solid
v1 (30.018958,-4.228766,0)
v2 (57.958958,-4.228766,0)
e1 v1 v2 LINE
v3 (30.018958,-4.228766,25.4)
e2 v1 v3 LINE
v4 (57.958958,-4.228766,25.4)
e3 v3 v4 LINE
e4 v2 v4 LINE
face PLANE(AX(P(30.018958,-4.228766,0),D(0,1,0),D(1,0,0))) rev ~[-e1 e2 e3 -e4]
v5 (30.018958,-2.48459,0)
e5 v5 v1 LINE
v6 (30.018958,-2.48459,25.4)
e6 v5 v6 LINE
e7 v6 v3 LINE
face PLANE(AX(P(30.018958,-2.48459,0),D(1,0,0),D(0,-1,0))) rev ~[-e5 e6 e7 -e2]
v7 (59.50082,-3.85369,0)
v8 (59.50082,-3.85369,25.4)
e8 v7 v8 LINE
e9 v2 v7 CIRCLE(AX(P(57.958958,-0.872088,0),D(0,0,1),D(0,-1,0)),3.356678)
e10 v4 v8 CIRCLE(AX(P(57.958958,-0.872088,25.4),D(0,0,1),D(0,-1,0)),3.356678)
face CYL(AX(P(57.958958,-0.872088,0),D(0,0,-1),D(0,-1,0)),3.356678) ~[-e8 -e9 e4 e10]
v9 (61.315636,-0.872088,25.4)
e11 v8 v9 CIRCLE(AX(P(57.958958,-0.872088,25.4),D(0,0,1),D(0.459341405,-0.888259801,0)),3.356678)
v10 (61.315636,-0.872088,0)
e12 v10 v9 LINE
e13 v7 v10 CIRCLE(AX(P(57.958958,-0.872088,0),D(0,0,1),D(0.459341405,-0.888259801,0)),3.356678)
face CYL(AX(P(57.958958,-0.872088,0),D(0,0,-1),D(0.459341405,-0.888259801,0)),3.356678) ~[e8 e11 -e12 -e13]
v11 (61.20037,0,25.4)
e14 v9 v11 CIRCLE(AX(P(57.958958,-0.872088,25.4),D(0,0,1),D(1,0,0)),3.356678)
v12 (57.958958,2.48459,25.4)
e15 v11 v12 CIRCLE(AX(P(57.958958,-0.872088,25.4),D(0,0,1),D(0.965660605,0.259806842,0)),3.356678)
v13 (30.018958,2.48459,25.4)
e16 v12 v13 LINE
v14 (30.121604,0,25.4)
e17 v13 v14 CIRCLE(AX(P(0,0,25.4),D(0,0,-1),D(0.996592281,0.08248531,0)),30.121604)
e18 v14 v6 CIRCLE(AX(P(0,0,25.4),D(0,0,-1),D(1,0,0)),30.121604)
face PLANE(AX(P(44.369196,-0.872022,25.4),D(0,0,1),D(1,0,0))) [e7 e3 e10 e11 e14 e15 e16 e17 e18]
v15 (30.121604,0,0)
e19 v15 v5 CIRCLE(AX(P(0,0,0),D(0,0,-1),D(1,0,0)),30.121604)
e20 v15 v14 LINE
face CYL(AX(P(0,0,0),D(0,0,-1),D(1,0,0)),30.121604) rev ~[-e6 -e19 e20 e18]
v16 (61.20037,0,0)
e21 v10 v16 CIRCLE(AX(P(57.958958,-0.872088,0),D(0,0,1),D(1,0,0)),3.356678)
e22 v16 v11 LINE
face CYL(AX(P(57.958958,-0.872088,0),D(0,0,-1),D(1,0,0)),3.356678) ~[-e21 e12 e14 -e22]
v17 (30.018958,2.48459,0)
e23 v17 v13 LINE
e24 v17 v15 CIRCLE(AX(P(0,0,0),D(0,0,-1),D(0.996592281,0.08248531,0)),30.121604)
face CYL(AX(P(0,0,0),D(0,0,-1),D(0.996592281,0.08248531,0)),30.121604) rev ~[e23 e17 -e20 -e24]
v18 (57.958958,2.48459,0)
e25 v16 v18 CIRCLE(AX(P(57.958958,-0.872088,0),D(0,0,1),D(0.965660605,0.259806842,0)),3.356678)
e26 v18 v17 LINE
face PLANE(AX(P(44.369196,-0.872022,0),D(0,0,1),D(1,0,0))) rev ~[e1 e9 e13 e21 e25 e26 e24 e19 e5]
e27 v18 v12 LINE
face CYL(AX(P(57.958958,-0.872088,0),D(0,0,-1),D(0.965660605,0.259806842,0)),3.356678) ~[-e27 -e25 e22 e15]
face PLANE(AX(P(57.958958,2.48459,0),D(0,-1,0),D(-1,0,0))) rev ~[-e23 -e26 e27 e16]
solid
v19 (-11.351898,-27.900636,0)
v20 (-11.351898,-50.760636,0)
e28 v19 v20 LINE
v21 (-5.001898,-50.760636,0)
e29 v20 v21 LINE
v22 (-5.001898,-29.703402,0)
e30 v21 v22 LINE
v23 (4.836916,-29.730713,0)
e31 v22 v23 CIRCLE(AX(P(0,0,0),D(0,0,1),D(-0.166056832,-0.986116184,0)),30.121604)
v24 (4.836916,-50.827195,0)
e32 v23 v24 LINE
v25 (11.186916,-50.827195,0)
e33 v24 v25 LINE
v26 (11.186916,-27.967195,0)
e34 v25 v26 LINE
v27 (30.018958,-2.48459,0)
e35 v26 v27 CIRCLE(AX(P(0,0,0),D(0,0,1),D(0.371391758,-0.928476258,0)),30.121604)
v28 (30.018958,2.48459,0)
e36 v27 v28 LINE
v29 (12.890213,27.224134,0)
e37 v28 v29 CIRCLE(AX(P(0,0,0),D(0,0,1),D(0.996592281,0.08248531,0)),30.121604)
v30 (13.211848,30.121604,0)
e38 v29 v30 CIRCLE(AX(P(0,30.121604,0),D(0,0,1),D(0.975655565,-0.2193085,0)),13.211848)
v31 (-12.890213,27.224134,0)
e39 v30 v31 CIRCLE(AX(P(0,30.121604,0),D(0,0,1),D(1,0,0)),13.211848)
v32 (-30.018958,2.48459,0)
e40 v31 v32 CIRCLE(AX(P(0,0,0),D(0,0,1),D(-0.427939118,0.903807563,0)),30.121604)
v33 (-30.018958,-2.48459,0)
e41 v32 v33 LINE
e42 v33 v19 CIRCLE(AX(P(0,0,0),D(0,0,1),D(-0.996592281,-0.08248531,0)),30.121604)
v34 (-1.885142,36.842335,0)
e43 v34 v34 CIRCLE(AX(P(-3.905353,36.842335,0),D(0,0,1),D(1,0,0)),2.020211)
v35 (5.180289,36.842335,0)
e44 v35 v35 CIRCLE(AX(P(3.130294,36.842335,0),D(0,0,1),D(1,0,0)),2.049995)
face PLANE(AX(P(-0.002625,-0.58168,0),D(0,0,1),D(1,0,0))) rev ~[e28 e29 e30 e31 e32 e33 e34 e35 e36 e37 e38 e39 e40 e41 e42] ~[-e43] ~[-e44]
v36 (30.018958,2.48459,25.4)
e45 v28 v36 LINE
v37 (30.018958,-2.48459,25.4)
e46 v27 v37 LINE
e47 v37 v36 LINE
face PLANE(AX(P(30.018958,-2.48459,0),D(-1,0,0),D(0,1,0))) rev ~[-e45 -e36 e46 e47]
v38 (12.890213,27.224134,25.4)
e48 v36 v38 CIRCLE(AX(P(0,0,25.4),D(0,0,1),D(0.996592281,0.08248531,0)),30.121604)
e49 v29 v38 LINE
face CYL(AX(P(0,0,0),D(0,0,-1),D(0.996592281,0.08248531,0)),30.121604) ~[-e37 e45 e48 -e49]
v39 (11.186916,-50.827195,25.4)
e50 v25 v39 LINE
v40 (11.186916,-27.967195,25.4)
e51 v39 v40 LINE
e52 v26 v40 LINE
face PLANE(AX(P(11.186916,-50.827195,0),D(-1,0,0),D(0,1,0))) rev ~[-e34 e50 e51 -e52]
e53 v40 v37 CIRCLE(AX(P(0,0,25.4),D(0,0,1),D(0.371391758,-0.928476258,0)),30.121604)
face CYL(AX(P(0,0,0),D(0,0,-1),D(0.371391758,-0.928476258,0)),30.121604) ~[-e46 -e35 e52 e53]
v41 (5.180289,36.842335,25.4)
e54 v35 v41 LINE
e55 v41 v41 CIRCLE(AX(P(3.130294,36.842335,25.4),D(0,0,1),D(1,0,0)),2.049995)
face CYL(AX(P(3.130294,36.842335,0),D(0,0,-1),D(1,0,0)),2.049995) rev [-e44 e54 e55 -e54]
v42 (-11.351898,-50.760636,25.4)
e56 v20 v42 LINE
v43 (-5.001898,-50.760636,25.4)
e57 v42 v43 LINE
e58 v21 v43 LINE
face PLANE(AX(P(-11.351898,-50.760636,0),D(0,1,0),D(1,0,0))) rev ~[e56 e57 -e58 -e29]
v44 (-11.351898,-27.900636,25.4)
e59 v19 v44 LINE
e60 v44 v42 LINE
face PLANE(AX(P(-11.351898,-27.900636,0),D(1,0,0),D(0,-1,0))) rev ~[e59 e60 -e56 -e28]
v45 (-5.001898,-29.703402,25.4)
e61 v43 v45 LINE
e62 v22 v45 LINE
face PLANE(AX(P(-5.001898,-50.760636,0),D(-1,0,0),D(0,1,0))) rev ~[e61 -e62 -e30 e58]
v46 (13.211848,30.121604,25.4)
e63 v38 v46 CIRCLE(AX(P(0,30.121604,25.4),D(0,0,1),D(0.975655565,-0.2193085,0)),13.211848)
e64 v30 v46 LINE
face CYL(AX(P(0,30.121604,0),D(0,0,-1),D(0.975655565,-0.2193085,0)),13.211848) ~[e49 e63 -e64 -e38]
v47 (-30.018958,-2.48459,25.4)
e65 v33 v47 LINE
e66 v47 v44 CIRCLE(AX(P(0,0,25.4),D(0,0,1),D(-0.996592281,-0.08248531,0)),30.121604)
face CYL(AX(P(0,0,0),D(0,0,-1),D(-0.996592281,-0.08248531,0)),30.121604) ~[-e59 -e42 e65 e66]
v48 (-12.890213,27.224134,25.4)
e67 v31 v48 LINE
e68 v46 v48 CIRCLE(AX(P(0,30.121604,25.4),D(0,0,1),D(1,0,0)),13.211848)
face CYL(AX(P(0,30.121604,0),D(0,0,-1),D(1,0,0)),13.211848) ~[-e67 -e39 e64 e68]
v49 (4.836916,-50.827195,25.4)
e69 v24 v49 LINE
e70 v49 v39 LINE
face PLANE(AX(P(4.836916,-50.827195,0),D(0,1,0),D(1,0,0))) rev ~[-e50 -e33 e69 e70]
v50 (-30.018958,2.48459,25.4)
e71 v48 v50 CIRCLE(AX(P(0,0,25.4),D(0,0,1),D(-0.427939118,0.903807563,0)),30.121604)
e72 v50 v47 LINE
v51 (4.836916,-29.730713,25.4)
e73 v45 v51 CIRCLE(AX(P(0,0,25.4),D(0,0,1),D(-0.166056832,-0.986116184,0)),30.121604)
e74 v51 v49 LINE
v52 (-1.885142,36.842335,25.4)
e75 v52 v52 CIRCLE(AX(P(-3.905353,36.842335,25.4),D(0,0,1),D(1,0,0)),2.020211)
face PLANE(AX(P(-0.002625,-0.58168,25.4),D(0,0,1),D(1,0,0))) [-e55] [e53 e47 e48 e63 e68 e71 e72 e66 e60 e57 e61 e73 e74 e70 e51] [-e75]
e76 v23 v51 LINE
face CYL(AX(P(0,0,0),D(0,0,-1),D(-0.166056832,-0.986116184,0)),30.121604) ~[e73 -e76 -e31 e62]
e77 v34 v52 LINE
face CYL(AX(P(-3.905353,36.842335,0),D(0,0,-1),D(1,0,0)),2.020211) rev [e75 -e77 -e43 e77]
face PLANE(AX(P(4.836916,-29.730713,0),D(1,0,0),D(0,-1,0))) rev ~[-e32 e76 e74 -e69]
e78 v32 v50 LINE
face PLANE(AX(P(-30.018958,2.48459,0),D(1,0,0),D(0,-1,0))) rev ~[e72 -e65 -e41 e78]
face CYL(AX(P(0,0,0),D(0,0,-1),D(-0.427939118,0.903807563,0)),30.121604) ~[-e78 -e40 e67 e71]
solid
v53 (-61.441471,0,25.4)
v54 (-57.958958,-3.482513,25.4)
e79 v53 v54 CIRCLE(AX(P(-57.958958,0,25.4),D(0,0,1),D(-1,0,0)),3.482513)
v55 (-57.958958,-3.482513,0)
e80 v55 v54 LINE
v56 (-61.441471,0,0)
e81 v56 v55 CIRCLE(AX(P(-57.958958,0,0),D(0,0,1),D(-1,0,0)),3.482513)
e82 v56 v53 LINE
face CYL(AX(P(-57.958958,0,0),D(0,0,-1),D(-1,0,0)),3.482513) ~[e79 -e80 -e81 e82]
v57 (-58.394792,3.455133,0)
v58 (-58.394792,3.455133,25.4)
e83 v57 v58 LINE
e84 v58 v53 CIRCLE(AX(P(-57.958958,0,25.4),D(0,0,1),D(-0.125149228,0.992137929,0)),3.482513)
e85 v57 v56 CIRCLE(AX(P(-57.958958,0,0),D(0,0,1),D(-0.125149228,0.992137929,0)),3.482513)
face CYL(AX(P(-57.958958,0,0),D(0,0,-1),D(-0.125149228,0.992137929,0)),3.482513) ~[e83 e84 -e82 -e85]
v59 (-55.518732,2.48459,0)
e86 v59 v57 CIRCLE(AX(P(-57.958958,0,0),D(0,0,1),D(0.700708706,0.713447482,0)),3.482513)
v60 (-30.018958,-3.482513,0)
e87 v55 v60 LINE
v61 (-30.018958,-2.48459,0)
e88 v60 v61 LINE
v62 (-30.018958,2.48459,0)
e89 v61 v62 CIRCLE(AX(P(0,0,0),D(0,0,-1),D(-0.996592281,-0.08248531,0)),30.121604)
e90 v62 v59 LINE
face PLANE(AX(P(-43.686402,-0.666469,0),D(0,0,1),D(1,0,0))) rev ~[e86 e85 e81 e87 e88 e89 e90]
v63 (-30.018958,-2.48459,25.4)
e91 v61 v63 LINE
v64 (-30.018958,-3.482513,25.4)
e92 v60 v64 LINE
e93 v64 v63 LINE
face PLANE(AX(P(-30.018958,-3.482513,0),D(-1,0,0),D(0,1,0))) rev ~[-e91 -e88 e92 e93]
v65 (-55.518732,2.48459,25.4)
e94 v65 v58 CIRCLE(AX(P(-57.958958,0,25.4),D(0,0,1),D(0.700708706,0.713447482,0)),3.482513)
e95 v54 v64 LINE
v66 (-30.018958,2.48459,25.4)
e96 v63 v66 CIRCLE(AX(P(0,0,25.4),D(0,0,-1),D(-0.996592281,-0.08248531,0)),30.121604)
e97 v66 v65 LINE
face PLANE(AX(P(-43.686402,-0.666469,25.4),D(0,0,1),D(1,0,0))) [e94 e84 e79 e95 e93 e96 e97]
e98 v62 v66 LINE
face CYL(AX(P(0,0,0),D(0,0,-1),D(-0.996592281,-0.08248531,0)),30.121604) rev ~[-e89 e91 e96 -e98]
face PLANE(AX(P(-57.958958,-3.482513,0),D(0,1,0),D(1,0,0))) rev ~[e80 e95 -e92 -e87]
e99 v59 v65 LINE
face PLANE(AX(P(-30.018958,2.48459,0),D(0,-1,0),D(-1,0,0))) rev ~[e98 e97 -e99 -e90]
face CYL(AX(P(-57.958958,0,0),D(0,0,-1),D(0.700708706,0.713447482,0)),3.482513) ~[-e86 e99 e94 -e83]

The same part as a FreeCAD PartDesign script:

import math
import FreeCAD as App
import Part
import Sketcher

V = App.Vector
Q = App.Units.Quantity

doc = App.newDocument("Part")
body = doc.addObject("PartDesign::Body", "Body")

# Sketch on XY plane
sketch1 = body.newObject("Sketcher::SketchObject", "Sketch")
sketch1.AttachmentSupport = (doc.getObject("XY_Plane"), [""])
sketch1.MapMode = "FlatFace"
sketch1.addGeometry([
    Part.LineSegment(V(30, -2.5, 0), V(30, 2.5, 0)),  # 0
    Part.ArcOfCircle(Part.Circle(V(0, 0, 0), V(0, 0, 1), 30.1), math.radians(5), math.radians(65)),  # 1
    Part.ArcOfCircle(Part.Circle(V(0, 30.1, 0), V(0, 0, 1), 13.2), math.radians(-12.67), math.radians(0)),  # 2
    Part.ArcOfCircle(Part.Circle(V(0, 30.1, 0), V(0, 0, 1), 13.2), math.radians(0), math.radians(193)),  # 3
    Part.ArcOfCircle(Part.Circle(V(0, 0, 0), V(0, 0, 1), 30.1), math.radians(115), math.radians(175)),  # 4
    Part.LineSegment(V(-30, 2.5, 0), V(-30, -2.5, 0)),  # 5
    Part.ArcOfCircle(Part.Circle(V(0, 0, 0), V(0, 0, 1), 30.1), math.radians(-175), math.radians(-112)),  # 6
    Part.LineSegment(V(-11.4, -27.9, 0), V(-11.4, -50.8, 0)),  # 7
    Part.LineSegment(V(-11.4, -50.8, 0), V(-5, -50.8, 0)),  # 8
    Part.LineSegment(V(-5, -50.8, 0), V(-5, -29.7, 0)),  # 9
    Part.ArcOfCircle(Part.Circle(V(0, 0, 0), V(0, 0, 1), 30.1), math.radians(-99.56), math.radians(-80.76)),  # 10
    Part.LineSegment(V(4.8, -29.7, 0), V(4.8, -50.8, 0)),  # 11
    Part.LineSegment(V(4.8, -50.8, 0), V(11.2, -50.8, 0)),  # 12
    Part.LineSegment(V(11.2, -50.8, 0), V(11.2, -28, 0)),  # 13
    Part.ArcOfCircle(Part.Circle(V(0, 0, 0), V(0, 0, 1), 30.1), math.radians(-68), math.radians(-5)),  # 14
    Part.Circle(V(-3.9, 36.8, 0), V(0, 0, 1), 2),  # 15
    Part.Circle(V(3.1, 36.8, 0), V(0, 0, 1), 2),  # 16
], False)
sketch1.addConstraint([
    Sketcher.Constraint("Coincident", 0, 2, 1, 1),
    Sketcher.Constraint("Coincident", 1, 2, 2, 1),
    Sketcher.Constraint("Tangent", 2, 2, 3, 1),
    Sketcher.Constraint("Coincident", 3, 2, 4, 1),
    Sketcher.Constraint("Coincident", 4, 2, 5, 1),
    Sketcher.Constraint("Coincident", 5, 2, 6, 1),
    Sketcher.Constraint("Coincident", 6, 2, 7, 1),
    Sketcher.Constraint("Coincident", 7, 2, 8, 1),
    Sketcher.Constraint("Coincident", 8, 2, 9, 1),
    Sketcher.Constraint("Coincident", 9, 2, 10, 1),
    Sketcher.Constraint("Coincident", 10, 2, 11, 1),
    Sketcher.Constraint("Coincident", 11, 2, 12, 1),
    Sketcher.Constraint("Coincident", 12, 2, 13, 1),
    Sketcher.Constraint("Coincident", 13, 2, 14, 1),
    Sketcher.Constraint("Coincident", 14, 2, 0, 1),
    Sketcher.Constraint("Vertical", 0),
    Sketcher.Constraint("Vertical", 5),
    Sketcher.Constraint("Vertical", 7),
    Sketcher.Constraint("Horizontal", 8),
    Sketcher.Constraint("Vertical", 9),
    Sketcher.Constraint("Vertical", 11),
    Sketcher.Constraint("Horizontal", 12),
    Sketcher.Constraint("Vertical", 13),
    Sketcher.Constraint("Coincident", 1, 3, -1, 1),
    Sketcher.Constraint("Coincident", 4, 3, -1, 1),
    Sketcher.Constraint("Coincident", 6, 3, -1, 1),
    Sketcher.Constraint("Coincident", 10, 3, -1, 1),
    Sketcher.Constraint("Coincident", 14, 3, -1, 1),
    Sketcher.Constraint("Equal", 2, 3),
    Sketcher.Constraint("Equal", 1, 4),
    Sketcher.Constraint("Equal", 4, 6),
    Sketcher.Constraint("Equal", 6, 10),
    Sketcher.Constraint("Equal", 10, 14),
    Sketcher.Constraint("PointOnObject", 2, 3, -2),
    Sketcher.Constraint("Horizontal", 15, 3, 16, 3),
    Sketcher.Constraint("Horizontal", 3, 3, 2, 2),
    Sketcher.Constraint("Horizontal", 0, 2, 4, 2),
    Sketcher.Constraint("Equal", 8, 12),
    Sketcher.Constraint("Equal", 7, 13),
    Sketcher.Constraint("DistanceY", 7, 2, 7, 1, Q("0.9 in")),
    Sketcher.Constraint("DistanceX", 8, 1, 8, 2, Q("0.25 in")),
    Sketcher.Constraint("Diameter", 16, 4.09999),
    Sketcher.Constraint("Diameter", 15, 4.040422),
    Sketcher.Constraint("Radius", 1, 30.121604),
    Sketcher.Constraint("Radius", 2, 13.211848),
    Sketcher.Constraint("DistanceY", 0, 1, 0, 2, 4.96918),
    Sketcher.Constraint("DistanceY", 11, 2, 11, 1, 21.096481),
    Sketcher.Constraint("DistanceX", 6, 2, -1, 1, 11.351898),
    Sketcher.Constraint("DistanceY", 1, 2, 16, 3, 9.618201),
    Sketcher.Constraint("DistanceX", 15, 3, 2, 2, 17.117201),
    Sketcher.Constraint("DistanceY", 3, 3, 15, 3, 6.720731),
    Sketcher.Constraint("DistanceX", 16, 3, 1, 2, 9.759918),
])
pad1 = body.newObject("PartDesign::Pad", "Pad")
pad1.Profile = sketch1
pad1.Length = Q("1 in")
body2 = doc.addObject("PartDesign::Body", "Body001")

# Sketch on XY plane
sketch2 = body2.newObject("Sketcher::SketchObject", "Sketch001")
sketch2.AttachmentSupport = (doc.getObject("XY_Plane001"), [""])
sketch2.MapMode = "FlatFace"
sketch2.addGeometry([
    Part.ArcOfCircle(Part.Circle(V(0, 0, 0), V(0, 0, 1), 30.1), math.radians(0), math.radians(4.73)),  # 0
    Part.ArcOfCircle(Part.Circle(V(0, 0, 0), V(0, 0, 1), 30.1), math.radians(-4.73), math.radians(0)),  # 1
    Part.LineSegment(V(30, -2.5, 0), V(30, -4.2, 0)),  # 2
    Part.LineSegment(V(30, -4.2, 0), V(58, -4.2, 0)),  # 3
    Part.ArcOfCircle(Part.Circle(V(58, -0.9, 0), V(0, 0, 1), 3.4), math.radians(-90), math.radians(-63)),  # 4
    Part.ArcOfCircle(Part.Circle(V(58, -0.9, 0), V(0, 0, 1), 3.4), math.radians(-63), math.radians(0)),  # 5
    Part.ArcOfCircle(Part.Circle(V(58, -0.9, 0), V(0, 0, 1), 3.4), math.radians(0), math.radians(15.06)),  # 6
    Part.ArcOfCircle(Part.Circle(V(58, -0.9, 0), V(0, 0, 1), 3.4), math.radians(15), math.radians(90)),  # 7
    Part.LineSegment(V(58, 2.5, 0), V(30, 2.5, 0)),  # 8
], False)
sketch2.addConstraint([
    Sketcher.Constraint("Tangent", 0, 1, 1, 2),
    Sketcher.Constraint("Coincident", 1, 1, 2, 1),
    Sketcher.Constraint("Coincident", 2, 2, 3, 1),
    Sketcher.Constraint("Tangent", 3, 2, 4, 1),
    Sketcher.Constraint("Tangent", 4, 2, 5, 1),
    Sketcher.Constraint("Tangent", 5, 2, 6, 1),
    Sketcher.Constraint("Tangent", 6, 2, 7, 1),
    Sketcher.Constraint("Tangent", 7, 2, 8, 1),
    Sketcher.Constraint("Coincident", 8, 2, 0, 2),
    Sketcher.Constraint("Vertical", 2),
    Sketcher.Constraint("Horizontal", 3),
    Sketcher.Constraint("Horizontal", 8),
    Sketcher.Constraint("Coincident", 0, 3, -1, 1),
    Sketcher.Constraint("Coincident", 6, 3, 4, 3),
    Sketcher.Constraint("Equal", 0, 1),
    Sketcher.Constraint("Equal", 6, 7),
    Sketcher.Constraint("PointOnObject", 0, 1, -1),
    Sketcher.Constraint("PointOnObject", 6, 2, -1),
    Sketcher.Constraint("Horizontal", 7, 3, 5, 2),
    Sketcher.Constraint("Vertical", 2, 2, 8, 2),
    Sketcher.Constraint("DistanceX", 3, 1, 3, 2, Q("1.1 in")),
    Sketcher.Constraint("Radius", 0, 30.121604),
    Sketcher.Constraint("Radius", 4, 3.356678),
    Sketcher.Constraint("DistanceY", 4, 2, 4, 3, 2.981602),
    Sketcher.Constraint("DistanceY", 2, 2, 2, 1, 1.744176),
])
pad2 = body2.newObject("PartDesign::Pad", "Pad001")
pad2.Profile = sketch2
pad2.Length = Q("1 in")
body3 = doc.addObject("PartDesign::Body", "Body002")

# Sketch on XY plane
sketch3 = body3.newObject("Sketcher::SketchObject", "Sketch002")
sketch3.AttachmentSupport = (doc.getObject("XY_Plane002"), [""])
sketch3.MapMode = "FlatFace"
sketch3.addGeometry([
    Part.ArcOfCircle(Part.Circle(V(0, 0, 0), V(0, 0, 1), 30.1), math.radians(175.27), math.radians(184.73)),  # 0
    Part.LineSegment(V(-30, 2.5, 0), V(-55.5, 2.5, 0)),  # 1
    Part.ArcOfCircle(Part.Circle(V(-58, 0, 0), V(0, 0, 1), 3.5), math.radians(46), math.radians(97)),  # 2
    Part.ArcOfCircle(Part.Circle(V(-58, 0, 0), V(0, 0, 1), 3.5), math.radians(97), math.radians(180)),  # 3
    Part.ArcOfCircle(Part.Circle(V(-58, 0, 0), V(0, 0, 1), 3.5), math.radians(180), math.radians(270)),  # 4
    Part.LineSegment(V(-58, -3.5, 0), V(-30, -3.5, 0)),  # 5
    Part.LineSegment(V(-30, -3.5, 0), V(-30, -2.5, 0)),  # 6
], False)
sketch3.addConstraint([
    Sketcher.Constraint("Coincident", 0, 1, 1, 1),
    Sketcher.Constraint("Coincident", 1, 2, 2, 1),
    Sketcher.Constraint("Tangent", 2, 2, 3, 1),
    Sketcher.Constraint("Tangent", 3, 2, 4, 1),
    Sketcher.Constraint("Tangent", 4, 2, 5, 1),
    Sketcher.Constraint("Coincident", 5, 2, 6, 1),
    Sketcher.Constraint("Coincident", 6, 2, 0, 2),
    Sketcher.Constraint("Horizontal", 1),
    Sketcher.Constraint("Horizontal", 5),
    Sketcher.Constraint("Vertical", 6),
    Sketcher.Constraint("Coincident", 0, 3, -1, 1),
    Sketcher.Constraint("Coincident", 4, 3, 2, 3),
    Sketcher.Constraint("PointOnObject", 2, 3, -1),
    Sketcher.Constraint("PointOnObject", 3, 2, -1),
    Sketcher.Constraint("Vertical", 0, 1, 5, 2),
    Sketcher.Constraint("DistanceX", 5, 1, 5, 2, Q("1.1 in")),
    Sketcher.Constraint("Radius", 0, 30.121604),
    Sketcher.Constraint("Radius", 2, 3.482513),
    Sketcher.Constraint("DistanceX", 1, 2, 1, 1, 25.499773),
    Sketcher.Constraint("DistanceX", 2, 2, 1, 2, 2.876061),
])
pad3 = body3.newObject("PartDesign::Pad", "Pad002")
pad3.Profile = sketch3
pad3.Length = Q("1 in")

doc.recompute()
